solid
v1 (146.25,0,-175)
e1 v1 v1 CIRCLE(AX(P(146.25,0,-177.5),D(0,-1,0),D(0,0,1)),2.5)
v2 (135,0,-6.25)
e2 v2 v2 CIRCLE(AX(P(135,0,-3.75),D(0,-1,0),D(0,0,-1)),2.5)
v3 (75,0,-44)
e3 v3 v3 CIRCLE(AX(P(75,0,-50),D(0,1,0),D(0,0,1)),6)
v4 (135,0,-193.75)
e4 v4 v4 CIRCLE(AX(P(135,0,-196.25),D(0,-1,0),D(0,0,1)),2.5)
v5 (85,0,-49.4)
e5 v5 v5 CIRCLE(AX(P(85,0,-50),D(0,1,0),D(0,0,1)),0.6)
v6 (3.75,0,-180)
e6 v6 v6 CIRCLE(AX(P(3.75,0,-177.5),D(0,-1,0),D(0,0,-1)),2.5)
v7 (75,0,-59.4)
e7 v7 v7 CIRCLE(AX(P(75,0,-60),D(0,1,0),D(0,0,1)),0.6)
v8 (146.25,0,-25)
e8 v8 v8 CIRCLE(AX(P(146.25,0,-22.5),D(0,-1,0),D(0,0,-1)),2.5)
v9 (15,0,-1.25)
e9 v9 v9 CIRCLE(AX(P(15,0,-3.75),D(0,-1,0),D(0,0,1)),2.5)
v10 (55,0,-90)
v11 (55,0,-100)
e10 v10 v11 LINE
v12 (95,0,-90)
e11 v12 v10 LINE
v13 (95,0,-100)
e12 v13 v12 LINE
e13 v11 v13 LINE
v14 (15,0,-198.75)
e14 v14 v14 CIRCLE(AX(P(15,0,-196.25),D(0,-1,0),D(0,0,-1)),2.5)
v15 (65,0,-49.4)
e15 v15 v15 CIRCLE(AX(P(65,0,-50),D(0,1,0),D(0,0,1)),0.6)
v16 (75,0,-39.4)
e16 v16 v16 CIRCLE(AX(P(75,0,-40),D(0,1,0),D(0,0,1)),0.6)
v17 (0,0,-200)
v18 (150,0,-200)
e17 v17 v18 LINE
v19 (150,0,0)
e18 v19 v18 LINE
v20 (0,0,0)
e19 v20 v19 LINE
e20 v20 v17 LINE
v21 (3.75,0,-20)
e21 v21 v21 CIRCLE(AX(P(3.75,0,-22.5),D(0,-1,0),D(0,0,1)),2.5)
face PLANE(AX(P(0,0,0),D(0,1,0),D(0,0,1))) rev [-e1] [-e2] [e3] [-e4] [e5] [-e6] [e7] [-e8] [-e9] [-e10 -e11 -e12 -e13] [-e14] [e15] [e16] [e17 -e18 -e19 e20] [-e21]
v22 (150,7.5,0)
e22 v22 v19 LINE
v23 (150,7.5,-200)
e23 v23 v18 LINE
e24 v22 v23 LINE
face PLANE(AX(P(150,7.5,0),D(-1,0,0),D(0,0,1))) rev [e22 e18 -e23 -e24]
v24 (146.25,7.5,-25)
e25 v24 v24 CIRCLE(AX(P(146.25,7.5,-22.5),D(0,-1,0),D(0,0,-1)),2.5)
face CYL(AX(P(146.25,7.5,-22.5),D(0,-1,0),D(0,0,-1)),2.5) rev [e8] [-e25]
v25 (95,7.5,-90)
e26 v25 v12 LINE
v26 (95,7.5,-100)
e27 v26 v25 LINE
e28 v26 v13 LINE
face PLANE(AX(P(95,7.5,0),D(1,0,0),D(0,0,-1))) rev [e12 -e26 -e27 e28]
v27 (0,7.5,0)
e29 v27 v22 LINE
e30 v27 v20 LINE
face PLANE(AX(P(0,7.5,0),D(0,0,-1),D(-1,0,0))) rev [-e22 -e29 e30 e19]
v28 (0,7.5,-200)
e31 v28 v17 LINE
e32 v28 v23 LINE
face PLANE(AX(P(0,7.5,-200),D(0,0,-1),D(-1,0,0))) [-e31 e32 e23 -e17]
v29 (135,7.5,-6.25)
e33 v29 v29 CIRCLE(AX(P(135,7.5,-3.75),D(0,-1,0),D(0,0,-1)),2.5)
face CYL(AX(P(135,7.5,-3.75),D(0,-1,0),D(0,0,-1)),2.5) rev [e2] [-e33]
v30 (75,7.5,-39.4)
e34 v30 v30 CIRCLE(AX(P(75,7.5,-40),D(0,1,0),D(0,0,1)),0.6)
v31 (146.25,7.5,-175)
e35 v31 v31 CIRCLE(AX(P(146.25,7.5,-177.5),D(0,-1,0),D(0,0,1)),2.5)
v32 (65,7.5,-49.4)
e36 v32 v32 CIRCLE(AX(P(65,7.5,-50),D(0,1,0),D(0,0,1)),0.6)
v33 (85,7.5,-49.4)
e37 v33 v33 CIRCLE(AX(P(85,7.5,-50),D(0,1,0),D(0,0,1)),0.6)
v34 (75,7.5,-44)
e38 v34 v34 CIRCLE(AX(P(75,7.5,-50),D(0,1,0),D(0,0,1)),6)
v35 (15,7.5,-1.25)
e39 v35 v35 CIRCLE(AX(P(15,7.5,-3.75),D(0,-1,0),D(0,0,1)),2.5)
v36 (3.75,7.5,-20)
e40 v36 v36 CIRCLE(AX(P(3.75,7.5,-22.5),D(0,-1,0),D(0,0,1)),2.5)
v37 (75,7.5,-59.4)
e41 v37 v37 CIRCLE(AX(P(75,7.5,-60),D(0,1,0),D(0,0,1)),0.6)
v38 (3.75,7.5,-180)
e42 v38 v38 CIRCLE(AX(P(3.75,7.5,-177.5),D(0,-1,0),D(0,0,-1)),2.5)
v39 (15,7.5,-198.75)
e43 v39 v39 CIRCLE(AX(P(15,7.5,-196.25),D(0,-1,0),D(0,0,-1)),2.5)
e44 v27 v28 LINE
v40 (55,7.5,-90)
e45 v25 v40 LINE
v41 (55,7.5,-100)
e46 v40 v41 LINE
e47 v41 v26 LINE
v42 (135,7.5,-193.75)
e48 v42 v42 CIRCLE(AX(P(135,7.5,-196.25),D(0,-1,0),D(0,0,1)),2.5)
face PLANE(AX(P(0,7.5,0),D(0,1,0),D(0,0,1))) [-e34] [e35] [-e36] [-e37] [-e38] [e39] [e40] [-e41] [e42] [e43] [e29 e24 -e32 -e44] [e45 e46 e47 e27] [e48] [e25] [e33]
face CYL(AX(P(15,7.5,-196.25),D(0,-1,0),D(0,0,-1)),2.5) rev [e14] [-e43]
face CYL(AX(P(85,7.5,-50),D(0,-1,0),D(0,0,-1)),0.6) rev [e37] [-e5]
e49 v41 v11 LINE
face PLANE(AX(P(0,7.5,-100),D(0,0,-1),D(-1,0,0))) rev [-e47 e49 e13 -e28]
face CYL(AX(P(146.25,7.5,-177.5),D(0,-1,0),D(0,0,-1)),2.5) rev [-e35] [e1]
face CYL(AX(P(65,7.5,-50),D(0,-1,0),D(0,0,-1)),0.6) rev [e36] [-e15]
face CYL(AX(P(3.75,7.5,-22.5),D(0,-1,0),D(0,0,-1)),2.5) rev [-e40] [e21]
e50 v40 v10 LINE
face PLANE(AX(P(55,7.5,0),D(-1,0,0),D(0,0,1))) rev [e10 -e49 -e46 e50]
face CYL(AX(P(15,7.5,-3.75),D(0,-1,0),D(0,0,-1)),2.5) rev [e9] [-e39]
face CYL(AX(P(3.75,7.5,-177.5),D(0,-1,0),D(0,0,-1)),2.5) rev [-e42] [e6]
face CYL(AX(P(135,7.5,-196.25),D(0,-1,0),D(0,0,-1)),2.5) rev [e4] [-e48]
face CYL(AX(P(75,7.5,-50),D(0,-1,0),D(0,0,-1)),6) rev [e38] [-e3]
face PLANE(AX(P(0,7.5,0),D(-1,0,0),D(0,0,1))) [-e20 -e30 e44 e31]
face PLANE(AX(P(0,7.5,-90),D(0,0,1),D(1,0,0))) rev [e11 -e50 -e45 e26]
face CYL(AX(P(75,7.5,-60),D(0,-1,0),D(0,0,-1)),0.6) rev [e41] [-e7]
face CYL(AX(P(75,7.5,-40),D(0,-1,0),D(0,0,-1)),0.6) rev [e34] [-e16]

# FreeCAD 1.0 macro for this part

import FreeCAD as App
import Part
import Sketcher
from FreeCAD import Vector

doc = App.newDocument("Part")
body = doc.addObject("PartDesign::Body", "Body")

# Sketch on XZ plane
sketch1 = body.newObject("Sketcher::SketchObject", "Sketch")
sketch1.AttachmentSupport = (doc.getObject("XZ_Plane"), [""])
sketch1.MapMode = "FlatFace"
sketch1.addGeometry(Part.LineSegment(Vector(0, -200, 0), Vector(0, 0, 0)), False)
sketch1.addGeometry(Part.LineSegment(Vector(0, 0, 0), Vector(150, 0, 0)), False)
sketch1.addGeometry(Part.LineSegment(Vector(150, 0, 0), Vector(150, -200, 0)), False)
sketch1.addGeometry(Part.LineSegment(Vector(150, -200, 0), Vector(0, -200, 0)), False)
sketch1.addGeometry(Part.Circle(Vector(65, -50, 0), Vector(0, 0, 1), 0.6), False)
sketch1.addGeometry(Part.Circle(Vector(75, -40, 0), Vector(0, 0, 1), 0.6), False)
sketch1.addGeometry(Part.Circle(Vector(75, -50, 0), Vector(0, 0, 1), 6), False)
sketch1.addGeometry(Part.Circle(Vector(85, -50, 0), Vector(0, 0, 1), 0.6), False)
sketch1.addGeometry(Part.Circle(Vector(75, -60, 0), Vector(0, 0, 1), 0.6), False)
sketch1.addGeometry(Part.LineSegment(Vector(55, -100, 0), Vector(95, -100, 0)), False)
sketch1.addGeometry(Part.LineSegment(Vector(95, -100, 0), Vector(95, -90, 0)), False)
sketch1.addGeometry(Part.LineSegment(Vector(95, -90, 0), Vector(55, -90, 0)), False)
sketch1.addGeometry(Part.LineSegment(Vector(55, -90, 0), Vector(55, -100, 0)), False)
sketch1.addConstraint(Sketcher.Constraint("Coincident", 0, 2, 1, 1))
sketch1.addConstraint(Sketcher.Constraint("Coincident", 1, 2, 2, 1))
sketch1.addConstraint(Sketcher.Constraint("Coincident", 2, 2, 3, 1))
sketch1.addConstraint(Sketcher.Constraint("Coincident", 3, 2, 0, 1))
sketch1.addConstraint(Sketcher.Constraint("Coincident", 9, 2, 10, 1))
sketch1.addConstraint(Sketcher.Constraint("Coincident", 10, 2, 11, 1))
sketch1.addConstraint(Sketcher.Constraint("Coincident", 11, 2, 12, 1))
sketch1.addConstraint(Sketcher.Constraint("Coincident", 12, 2, 9, 1))
sketch1.addConstraint(Sketcher.Constraint("Vertical", 0))
sketch1.addConstraint(Sketcher.Constraint("Horizontal", 1))
sketch1.addConstraint(Sketcher.Constraint("Vertical", 2))
sketch1.addConstraint(Sketcher.Constraint("Horizontal", 3))
sketch1.addConstraint(Sketcher.Constraint("Horizontal", 9))
sketch1.addConstraint(Sketcher.Constraint("Vertical", 10))
sketch1.addConstraint(Sketcher.Constraint("Horizontal", 11))
sketch1.addConstraint(Sketcher.Constraint("Vertical", 12))
sketch1.addConstraint(Sketcher.Constraint("Coincident", 0, 2, -1, 1))
sketch1.addConstraint(Sketcher.Constraint("Equal", 4, 5))
sketch1.addConstraint(Sketcher.Constraint("Equal", 5, 7))
sketch1.addConstraint(Sketcher.Constraint("Equal", 7, 8))
sketch1.addConstraint(Sketcher.Constraint("Horizontal", 4, 3, 6, 3))
sketch1.addConstraint(Sketcher.Constraint("Horizontal", 6, 3, 7, 3))
sketch1.addConstraint(Sketcher.Constraint("Vertical", 5, 3, 6, 3))
sketch1.addConstraint(Sketcher.Constraint("Vertical", 6, 3, 8, 3))
sketch1.addConstraint(Sketcher.Constraint("Diameter", 6, 12.0))
sketch1.addConstraint(Sketcher.Constraint("Diameter", 4, 1.2))
sketch1.addConstraint(Sketcher.Constraint("DistanceX", 1, 1, 1, 2, 150.0))
sketch1.addConstraint(Sketcher.Constraint("DistanceX", 9, 1, 9, 2, 40.0))
sketch1.addConstraint(Sketcher.Constraint("DistanceY", 0, 1, 0, 2, 200.0))
sketch1.addConstraint(Sketcher.Constraint("DistanceY", 10, 1, 10, 2, 10.0))
sketch1.addConstraint(Sketcher.Constraint("DistanceX", -1, 1, 4, 3, 65.0))
sketch1.addConstraint(Sketcher.Constraint("DistanceY", 4, 3, -1, 1, 50.0))
sketch1.addConstraint(Sketcher.Constraint("DistanceX", -1, 1, 5, 3, 75.0))
sketch1.addConstraint(Sketcher.Constraint("DistanceY", 5, 3, -1, 1, 40.0))
sketch1.addConstraint(Sketcher.Constraint("DistanceX", -1, 1, 7, 3, 85.0))
sketch1.addConstraint(Sketcher.Constraint("DistanceY", 8, 3, -1, 1, 60.0))
sketch1.addConstraint(Sketcher.Constraint("DistanceX", -1, 1, 9, 2, 95.0))
sketch1.addConstraint(Sketcher.Constraint("DistanceY", 9, 2, -1, 1, 100.0))
pad1 = body.newObject("PartDesign::Pad", "Pad")
pad1.Profile = sketch1
pad1.Length = 7.5
pad1.Reversed = True

# Sketch on XZ plane
sketch2 = body.newObject("Sketcher::SketchObject", "Sketch001")
sketch2.AttachmentSupport = (doc.getObject("XZ_Plane"), [""])
sketch2.MapMode = "FlatFace"
sketch2.addGeometry(Part.Circle(Vector(135, -3.8, 0), Vector(0, 0, 1), 2.5), False)
sketch2.addGeometry(Part.Circle(Vector(146.2, -22.5, 0), Vector(0, 0, 1), 2.5), False)
sketch2.addGeometry(Part.Circle(Vector(3.8, -22.5, 0), Vector(0, 0, 1), 2.5), False)
sketch2.addGeometry(Part.Circle(Vector(15, -3.8, 0), Vector(0, 0, 1), 2.5), False)
sketch2.addGeometry(Part.Circle(Vector(146.2, -177.5, 0), Vector(0, 0, 1), 2.5), False)
sketch2.addGeometry(Part.Circle(Vector(135, -196.2, 0), Vector(0, 0, 1), 2.5), False)
sketch2.addGeometry(Part.Circle(Vector(3.8, -177.5, 0), Vector(0, 0, 1), 2.5), False)
sketch2.addGeometry(Part.Circle(Vector(15, -196.2, 0), Vector(0, 0, 1), 2.5), False)
sketch2.addConstraint(Sketcher.Constraint("Equal", 0, 1))
sketch2.addConstraint(Sketcher.Constraint("Equal", 1, 2))
sketch2.addConstraint(Sketcher.Constraint("Equal", 2, 3))
sketch2.addConstraint(Sketcher.Constraint("Equal", 3, 4))
sketch2.addConstraint(Sketcher.Constraint("Equal", 4, 5))
sketch2.addConstraint(Sketcher.Constraint("Equal", 5, 6))
sketch2.addConstraint(Sketcher.Constraint("Equal", 6, 7))
sketch2.addConstraint(Sketcher.Constraint("Horizontal", 1, 3, 2, 3))
sketch2.addConstraint(Sketcher.Constraint("Horizontal", 0, 3, 3, 3))
sketch2.addConstraint(Sketcher.Constraint("Horizontal", 4, 3, 6, 3))
sketch2.addConstraint(Sketcher.Constraint("Horizontal", 5, 3, 7, 3))
sketch2.addConstraint(Sketcher.Constraint("Vertical", 1, 3, 4, 3))
sketch2.addConstraint(Sketcher.Constraint("Vertical", 0, 3, 5, 3))
sketch2.addConstraint(Sketcher.Constraint("Vertical", 2, 3, 6, 3))
sketch2.addConstraint(Sketcher.Constraint("Vertical", 3, 3, 7, 3))
sketch2.addConstraint(Sketcher.Constraint("Diameter", 0, 5.0))
sketch2.addConstraint(Sketcher.Constraint("DistanceX", -1, 1, 0, 3, 135.0))
sketch2.addConstraint(Sketcher.Constraint("DistanceX", -1, 1, 3, 3, 15.0))
sketch2.addConstraint(Sketcher.Constraint("DistanceY", 4, 3, 1, 3, 155.0))
sketch2.addConstraint(Sketcher.Constraint("DistanceY", 1, 3, -1, 1, 22.5))
sketch2.addConstraint(Sketcher.Constraint("DistanceX", 2, 3, 1, 3, 142.5))
sketch2.addConstraint(Sketcher.Constraint("DistanceY", 5, 3, 0, 3, 192.5))
sketch2.addConstraint(Sketcher.Constraint("DistanceY", 0, 3, -1, 1, 3.75))
sketch2.addConstraint(Sketcher.Constraint("DistanceX", -1, 1, 1, 3, 146.25))
pocket1 = body.newObject("PartDesign::Pocket", "Pocket")
pocket1.Profile = sketch2
pocket1.Length = 7.5

doc.recompute()
